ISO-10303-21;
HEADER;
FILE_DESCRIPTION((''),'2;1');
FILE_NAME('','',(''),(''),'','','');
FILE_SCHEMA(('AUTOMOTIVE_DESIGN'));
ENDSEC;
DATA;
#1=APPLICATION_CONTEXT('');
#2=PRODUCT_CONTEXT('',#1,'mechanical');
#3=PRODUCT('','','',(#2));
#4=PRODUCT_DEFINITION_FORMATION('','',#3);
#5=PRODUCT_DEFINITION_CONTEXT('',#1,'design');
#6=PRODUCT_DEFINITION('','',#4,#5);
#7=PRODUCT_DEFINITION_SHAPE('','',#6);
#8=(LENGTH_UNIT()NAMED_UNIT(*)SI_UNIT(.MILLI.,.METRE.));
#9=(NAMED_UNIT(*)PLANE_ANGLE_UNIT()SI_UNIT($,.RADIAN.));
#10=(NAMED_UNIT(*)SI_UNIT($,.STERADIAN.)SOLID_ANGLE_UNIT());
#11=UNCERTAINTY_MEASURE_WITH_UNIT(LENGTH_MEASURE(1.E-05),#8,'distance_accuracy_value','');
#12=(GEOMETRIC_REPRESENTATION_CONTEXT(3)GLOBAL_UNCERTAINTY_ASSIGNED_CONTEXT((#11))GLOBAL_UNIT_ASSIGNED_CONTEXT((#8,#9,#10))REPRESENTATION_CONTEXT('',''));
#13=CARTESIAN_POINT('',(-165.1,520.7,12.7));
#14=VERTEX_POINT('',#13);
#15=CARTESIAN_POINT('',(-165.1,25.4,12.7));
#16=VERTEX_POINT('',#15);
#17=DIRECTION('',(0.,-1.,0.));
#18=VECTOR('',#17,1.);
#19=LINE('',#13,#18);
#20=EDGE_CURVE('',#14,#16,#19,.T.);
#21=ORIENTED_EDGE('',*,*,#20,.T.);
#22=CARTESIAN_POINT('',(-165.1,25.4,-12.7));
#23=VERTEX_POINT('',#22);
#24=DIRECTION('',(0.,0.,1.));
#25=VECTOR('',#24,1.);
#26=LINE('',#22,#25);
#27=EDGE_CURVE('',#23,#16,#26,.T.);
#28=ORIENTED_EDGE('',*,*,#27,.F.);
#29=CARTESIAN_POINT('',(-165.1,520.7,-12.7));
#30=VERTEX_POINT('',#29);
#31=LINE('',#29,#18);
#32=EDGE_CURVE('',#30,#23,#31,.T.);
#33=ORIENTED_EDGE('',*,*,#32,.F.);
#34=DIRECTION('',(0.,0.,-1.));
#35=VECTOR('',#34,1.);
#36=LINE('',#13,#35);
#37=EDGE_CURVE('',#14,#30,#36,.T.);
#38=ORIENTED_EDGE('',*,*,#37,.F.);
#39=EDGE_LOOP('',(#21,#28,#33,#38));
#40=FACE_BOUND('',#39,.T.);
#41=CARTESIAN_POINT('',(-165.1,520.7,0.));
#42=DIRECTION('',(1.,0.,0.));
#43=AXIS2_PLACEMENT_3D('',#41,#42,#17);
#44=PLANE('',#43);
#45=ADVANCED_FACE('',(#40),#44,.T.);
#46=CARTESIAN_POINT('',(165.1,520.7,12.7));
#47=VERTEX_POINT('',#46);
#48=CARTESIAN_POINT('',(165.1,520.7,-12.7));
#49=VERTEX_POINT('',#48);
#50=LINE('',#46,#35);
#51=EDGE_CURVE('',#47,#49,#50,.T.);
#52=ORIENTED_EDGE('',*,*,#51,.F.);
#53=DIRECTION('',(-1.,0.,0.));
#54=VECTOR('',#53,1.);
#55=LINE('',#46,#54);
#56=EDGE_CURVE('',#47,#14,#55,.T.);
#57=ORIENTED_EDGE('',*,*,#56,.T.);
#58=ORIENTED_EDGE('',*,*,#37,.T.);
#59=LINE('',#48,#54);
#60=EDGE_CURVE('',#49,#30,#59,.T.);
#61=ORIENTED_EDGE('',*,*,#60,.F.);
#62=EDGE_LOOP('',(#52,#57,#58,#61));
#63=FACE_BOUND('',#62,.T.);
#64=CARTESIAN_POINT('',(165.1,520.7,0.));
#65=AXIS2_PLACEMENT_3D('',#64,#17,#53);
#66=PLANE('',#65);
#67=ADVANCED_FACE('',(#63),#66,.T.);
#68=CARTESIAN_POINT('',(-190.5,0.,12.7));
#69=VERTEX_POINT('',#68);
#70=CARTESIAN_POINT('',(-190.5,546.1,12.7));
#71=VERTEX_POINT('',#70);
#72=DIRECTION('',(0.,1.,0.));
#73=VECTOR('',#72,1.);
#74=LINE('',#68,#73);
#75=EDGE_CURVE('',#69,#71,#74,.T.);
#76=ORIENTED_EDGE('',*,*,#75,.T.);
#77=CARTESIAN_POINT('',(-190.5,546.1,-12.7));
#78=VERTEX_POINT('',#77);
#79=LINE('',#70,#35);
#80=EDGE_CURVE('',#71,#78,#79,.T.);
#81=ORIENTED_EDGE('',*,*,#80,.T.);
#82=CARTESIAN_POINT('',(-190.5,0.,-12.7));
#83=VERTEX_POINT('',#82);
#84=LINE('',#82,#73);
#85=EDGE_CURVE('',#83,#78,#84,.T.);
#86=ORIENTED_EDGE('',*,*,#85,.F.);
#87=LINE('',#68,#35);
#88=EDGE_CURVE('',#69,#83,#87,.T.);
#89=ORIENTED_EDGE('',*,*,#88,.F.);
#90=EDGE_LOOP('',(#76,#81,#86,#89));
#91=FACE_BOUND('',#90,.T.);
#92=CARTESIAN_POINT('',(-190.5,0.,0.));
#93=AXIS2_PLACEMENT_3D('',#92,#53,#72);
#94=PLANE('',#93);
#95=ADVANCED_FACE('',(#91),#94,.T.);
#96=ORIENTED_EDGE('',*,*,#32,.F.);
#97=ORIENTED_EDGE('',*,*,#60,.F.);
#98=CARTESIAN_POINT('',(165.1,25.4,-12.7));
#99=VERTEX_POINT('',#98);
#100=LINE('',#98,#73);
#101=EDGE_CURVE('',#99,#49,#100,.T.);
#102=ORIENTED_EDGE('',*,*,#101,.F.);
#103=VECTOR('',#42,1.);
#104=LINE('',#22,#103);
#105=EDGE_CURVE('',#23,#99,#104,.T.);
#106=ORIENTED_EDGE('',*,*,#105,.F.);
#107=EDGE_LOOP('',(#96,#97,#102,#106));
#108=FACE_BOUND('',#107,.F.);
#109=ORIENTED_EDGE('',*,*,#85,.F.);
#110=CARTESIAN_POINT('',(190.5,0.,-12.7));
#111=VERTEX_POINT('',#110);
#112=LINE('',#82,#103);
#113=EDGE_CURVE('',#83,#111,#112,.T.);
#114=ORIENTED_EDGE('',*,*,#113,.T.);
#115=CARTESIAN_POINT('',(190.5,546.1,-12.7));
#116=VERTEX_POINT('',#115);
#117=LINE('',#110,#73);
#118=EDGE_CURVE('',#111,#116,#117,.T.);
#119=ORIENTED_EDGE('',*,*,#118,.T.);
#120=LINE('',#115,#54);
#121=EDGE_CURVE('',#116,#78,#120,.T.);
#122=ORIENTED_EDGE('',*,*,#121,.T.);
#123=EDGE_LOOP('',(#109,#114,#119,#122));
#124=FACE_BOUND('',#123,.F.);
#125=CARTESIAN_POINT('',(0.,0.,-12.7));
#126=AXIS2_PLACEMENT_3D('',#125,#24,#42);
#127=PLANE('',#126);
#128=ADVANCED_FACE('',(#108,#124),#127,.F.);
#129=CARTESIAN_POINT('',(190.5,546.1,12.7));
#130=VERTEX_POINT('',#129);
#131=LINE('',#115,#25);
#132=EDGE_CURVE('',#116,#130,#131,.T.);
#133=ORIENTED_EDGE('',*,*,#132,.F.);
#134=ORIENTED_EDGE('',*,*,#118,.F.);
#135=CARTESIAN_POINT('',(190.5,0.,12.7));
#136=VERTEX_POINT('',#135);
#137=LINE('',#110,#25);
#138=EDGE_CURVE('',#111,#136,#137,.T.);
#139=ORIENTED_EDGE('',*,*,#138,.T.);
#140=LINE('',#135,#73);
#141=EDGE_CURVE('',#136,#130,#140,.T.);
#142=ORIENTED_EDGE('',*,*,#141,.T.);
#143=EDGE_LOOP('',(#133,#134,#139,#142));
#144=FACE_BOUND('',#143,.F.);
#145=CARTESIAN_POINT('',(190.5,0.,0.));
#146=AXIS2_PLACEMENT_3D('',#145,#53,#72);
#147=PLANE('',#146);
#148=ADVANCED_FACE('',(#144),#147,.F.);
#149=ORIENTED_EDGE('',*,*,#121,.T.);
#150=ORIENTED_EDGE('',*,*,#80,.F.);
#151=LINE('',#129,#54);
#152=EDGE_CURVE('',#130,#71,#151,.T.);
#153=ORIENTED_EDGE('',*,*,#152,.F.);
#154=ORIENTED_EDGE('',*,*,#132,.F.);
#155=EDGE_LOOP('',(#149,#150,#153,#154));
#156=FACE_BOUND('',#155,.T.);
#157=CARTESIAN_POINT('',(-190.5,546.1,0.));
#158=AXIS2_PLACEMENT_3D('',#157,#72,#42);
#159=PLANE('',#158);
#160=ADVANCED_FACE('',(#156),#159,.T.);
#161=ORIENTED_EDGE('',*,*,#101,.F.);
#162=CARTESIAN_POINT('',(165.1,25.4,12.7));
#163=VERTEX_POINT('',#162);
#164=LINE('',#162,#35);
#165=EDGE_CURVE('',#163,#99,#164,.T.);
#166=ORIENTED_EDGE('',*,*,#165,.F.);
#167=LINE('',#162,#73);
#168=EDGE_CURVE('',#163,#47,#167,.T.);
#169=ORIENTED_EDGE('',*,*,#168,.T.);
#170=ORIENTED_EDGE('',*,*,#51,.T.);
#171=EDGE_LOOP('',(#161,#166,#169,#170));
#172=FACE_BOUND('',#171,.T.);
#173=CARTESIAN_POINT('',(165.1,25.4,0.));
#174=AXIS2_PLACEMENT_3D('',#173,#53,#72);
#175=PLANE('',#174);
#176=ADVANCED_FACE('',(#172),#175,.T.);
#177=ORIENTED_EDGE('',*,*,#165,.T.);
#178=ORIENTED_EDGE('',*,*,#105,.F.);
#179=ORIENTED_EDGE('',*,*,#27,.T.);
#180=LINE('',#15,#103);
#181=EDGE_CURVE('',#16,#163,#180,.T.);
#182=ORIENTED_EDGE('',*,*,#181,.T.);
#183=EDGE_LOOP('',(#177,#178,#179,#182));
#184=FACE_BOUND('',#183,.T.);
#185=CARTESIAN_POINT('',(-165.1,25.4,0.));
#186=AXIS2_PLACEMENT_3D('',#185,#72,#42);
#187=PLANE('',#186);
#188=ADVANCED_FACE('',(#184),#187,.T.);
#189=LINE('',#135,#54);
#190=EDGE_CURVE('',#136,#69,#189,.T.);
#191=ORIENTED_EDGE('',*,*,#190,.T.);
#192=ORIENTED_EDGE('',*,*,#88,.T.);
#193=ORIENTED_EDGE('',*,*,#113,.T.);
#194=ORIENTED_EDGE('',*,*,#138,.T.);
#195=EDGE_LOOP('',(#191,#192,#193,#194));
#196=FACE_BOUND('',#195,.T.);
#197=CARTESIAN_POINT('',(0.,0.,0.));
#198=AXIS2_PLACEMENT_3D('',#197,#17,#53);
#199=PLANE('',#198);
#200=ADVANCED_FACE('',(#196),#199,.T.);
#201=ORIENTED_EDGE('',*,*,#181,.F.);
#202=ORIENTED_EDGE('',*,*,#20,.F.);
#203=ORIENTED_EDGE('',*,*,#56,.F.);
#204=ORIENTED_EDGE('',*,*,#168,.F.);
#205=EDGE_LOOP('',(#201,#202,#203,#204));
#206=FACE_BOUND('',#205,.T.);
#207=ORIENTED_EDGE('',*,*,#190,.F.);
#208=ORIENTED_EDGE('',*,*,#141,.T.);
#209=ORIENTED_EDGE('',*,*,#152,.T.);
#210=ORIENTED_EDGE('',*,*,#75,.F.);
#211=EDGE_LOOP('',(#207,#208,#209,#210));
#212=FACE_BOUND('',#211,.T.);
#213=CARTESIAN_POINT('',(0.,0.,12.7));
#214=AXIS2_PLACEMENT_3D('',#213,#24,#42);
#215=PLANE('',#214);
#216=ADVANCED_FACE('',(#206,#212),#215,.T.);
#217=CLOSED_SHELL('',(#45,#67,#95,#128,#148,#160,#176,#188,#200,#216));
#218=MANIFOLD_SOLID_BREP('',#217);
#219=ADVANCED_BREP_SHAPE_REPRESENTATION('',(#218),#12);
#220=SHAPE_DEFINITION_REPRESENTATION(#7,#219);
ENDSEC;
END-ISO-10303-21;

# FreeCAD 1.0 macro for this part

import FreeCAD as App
import Part
import Sketcher
from FreeCAD import Vector
Q = App.Units.Quantity


def add_polygon(sketch, points):
    """Adds a closed chain of lines whose ends are joined by coincident constraints."""
    first, n = sketch.GeometryCount, len(points)
    for a, b in zip(points, points[1:] + points[:1]):
        sketch.addGeometry(Part.LineSegment(App.Vector(*a, 0), App.Vector(*b, 0)), False)
    for i in range(n):
        sketch.addConstraint(Sketcher.Constraint("Coincident", first + i, 2, first + (i + 1) % n, 1))

doc = App.newDocument("Part")
body = doc.addObject("PartDesign::Body", "Body")

# Sketch on XY plane
sketch1 = body.newObject("Sketcher::SketchObject", "Sketch")
sketch1.AttachmentSupport = (doc.getObject("XY_Plane"), [""])
sketch1.MapMode = "FlatFace"
add_polygon(sketch1, [(-190, 0), (190, 0), (190, 546), (-190, 546)])  # lines 0-3
add_polygon(sketch1, [(165, 25), (-165, 25), (-165, 521), (165, 521)])  # lines 4-7
sketch1.addConstraint(Sketcher.Constraint("Horizontal", 0))
sketch1.addConstraint(Sketcher.Constraint("Vertical", 1))
sketch1.addConstraint(Sketcher.Constraint("Horizontal", 2))
sketch1.addConstraint(Sketcher.Constraint("Vertical", 3))
sketch1.addConstraint(Sketcher.Constraint("Horizontal", 4))
sketch1.addConstraint(Sketcher.Constraint("Vertical", 5))
sketch1.addConstraint(Sketcher.Constraint("Horizontal", 6))
sketch1.addConstraint(Sketcher.Constraint("Vertical", 7))
sketch1.addConstraint(Sketcher.Constraint("Symmetric", 0, 2, 3, 2, -1, 1))
sketch1.addConstraint(Sketcher.Constraint("DistanceX", 0, 1, 0, 2, Q("15 in")))
sketch1.addConstraint(Sketcher.Constraint("DistanceY", 1, 1, 1, 2, Q("21.5 in")))
sketch1.addConstraint(Sketcher.Constraint("DistanceY", -1, 1, 4, 2, Q("1 in")))
sketch1.addConstraint(Sketcher.Constraint("DistanceX", 3, 2, 4, 2, Q("1 in")))
sketch1.addConstraint(Sketcher.Constraint("DistanceY", 5, 2, 2, 2, Q("1 in")))
sketch1.addConstraint(Sketcher.Constraint("DistanceX", 6, 2, 1, 2, Q("1 in")))
pad1 = body.newObject("PartDesign::Pad", "Pad")
pad1.Profile = sketch1
pad1.Length = Q("1 in")
pad1.Midplane = True

doc.recompute()
